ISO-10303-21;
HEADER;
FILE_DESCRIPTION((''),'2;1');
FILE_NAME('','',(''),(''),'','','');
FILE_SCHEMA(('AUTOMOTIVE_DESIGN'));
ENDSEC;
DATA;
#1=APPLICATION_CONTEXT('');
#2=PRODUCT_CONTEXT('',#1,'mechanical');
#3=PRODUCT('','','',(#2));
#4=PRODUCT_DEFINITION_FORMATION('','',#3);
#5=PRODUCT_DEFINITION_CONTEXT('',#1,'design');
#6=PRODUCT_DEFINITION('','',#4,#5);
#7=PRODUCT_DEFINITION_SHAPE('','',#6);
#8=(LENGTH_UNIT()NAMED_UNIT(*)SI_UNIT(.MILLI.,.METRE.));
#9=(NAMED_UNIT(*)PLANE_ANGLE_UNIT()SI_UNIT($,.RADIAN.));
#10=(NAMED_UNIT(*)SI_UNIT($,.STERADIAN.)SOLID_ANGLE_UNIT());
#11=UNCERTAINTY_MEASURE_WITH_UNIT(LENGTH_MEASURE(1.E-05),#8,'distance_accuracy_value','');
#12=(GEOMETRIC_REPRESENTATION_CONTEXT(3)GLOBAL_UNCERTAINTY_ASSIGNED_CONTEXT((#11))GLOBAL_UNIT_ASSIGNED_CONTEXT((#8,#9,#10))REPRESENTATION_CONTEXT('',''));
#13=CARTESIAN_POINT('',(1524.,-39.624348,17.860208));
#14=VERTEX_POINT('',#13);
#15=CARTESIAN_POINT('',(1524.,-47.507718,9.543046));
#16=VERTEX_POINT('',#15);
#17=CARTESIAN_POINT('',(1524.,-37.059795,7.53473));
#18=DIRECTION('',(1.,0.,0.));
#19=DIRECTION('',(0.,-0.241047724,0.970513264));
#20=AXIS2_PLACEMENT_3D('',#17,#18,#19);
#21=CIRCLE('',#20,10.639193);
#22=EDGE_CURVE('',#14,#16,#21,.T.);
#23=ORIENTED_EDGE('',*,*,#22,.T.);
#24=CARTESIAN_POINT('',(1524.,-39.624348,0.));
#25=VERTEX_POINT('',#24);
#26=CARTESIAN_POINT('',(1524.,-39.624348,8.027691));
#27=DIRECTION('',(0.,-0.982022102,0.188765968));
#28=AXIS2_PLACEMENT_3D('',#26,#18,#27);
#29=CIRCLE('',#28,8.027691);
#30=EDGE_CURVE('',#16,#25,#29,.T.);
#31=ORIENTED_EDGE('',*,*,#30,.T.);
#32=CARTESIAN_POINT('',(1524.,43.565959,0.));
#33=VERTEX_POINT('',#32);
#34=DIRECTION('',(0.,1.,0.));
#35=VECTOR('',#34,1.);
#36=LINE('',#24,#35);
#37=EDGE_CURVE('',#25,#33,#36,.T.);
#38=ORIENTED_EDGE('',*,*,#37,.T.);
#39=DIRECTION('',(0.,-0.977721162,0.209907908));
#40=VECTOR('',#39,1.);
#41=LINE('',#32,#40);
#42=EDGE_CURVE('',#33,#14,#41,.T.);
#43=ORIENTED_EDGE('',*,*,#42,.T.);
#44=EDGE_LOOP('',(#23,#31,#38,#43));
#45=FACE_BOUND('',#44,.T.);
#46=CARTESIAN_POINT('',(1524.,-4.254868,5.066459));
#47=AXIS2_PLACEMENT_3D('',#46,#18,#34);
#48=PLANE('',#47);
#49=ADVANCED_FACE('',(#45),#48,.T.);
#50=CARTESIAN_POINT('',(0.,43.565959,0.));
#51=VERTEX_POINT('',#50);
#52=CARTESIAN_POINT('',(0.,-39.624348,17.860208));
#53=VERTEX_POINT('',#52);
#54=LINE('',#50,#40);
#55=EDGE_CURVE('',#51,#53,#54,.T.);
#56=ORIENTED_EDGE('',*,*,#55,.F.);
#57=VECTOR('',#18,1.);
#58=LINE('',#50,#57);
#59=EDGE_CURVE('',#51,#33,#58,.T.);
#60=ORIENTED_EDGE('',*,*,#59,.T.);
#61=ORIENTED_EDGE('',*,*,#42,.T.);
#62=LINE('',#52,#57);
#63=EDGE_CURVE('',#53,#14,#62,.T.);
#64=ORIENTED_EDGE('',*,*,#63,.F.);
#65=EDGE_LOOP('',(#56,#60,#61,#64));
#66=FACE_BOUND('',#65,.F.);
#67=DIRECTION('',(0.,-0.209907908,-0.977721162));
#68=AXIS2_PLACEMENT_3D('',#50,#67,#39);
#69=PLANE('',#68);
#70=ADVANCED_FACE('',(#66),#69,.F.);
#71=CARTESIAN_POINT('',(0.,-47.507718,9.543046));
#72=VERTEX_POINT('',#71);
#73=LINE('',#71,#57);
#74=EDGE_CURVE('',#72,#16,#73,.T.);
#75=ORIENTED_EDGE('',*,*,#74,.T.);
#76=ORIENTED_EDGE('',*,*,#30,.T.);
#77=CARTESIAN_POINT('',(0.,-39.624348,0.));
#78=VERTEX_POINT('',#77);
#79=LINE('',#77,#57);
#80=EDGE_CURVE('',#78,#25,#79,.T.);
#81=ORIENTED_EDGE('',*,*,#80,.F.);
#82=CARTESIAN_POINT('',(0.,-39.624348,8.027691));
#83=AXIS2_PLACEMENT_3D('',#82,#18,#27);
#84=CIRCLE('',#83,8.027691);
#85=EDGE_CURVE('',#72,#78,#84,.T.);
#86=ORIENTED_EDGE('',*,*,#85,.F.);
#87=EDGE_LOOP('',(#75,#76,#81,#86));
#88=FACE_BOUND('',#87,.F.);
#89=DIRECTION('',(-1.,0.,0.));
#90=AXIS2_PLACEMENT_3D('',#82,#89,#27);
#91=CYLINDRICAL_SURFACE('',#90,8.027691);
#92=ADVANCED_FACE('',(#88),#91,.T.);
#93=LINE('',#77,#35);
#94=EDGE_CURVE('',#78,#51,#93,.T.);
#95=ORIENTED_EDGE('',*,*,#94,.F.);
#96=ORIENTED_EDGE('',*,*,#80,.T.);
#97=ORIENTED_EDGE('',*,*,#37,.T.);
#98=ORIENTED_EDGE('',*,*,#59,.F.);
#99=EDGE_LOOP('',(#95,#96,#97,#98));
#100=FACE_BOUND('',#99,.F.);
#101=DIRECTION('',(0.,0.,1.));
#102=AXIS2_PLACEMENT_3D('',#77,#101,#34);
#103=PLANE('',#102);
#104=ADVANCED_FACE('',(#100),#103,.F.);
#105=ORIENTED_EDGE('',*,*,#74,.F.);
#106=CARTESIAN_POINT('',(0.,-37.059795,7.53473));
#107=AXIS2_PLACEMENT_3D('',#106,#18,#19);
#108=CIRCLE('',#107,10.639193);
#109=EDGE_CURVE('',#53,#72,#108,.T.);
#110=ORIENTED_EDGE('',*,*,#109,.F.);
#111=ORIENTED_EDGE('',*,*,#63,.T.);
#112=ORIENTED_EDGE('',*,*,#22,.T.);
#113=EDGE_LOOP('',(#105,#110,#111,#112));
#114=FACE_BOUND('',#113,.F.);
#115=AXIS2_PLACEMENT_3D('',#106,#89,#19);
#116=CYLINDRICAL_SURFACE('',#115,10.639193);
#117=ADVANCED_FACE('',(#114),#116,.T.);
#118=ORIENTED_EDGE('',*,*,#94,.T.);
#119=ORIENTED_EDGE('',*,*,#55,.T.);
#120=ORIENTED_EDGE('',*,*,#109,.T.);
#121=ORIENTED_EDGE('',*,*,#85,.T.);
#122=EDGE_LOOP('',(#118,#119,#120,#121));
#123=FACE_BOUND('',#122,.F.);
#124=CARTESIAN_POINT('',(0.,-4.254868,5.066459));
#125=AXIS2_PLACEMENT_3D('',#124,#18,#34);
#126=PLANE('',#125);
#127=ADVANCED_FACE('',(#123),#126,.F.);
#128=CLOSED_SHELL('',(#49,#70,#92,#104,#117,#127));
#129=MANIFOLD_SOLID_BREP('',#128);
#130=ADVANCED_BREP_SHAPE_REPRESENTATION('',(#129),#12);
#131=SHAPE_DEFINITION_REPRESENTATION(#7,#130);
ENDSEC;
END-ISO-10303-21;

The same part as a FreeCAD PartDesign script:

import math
import FreeCAD as App
import Part
import Sketcher
Q = App.Units.Quantity

doc = App.newDocument("Part")
body = doc.addObject("PartDesign::Body", "Body")

# Sketch on YZ plane
sketch1 = body.newObject("Sketcher::SketchObject", "Sketch")
sketch1.AttachmentSupport = (doc.getObject("YZ_Plane"), [""])
sketch1.MapMode = "FlatFace"
sketch1.addGeometry([
    Part.ArcOfCircle(Part.Circle(App.Vector(-40, 8, 0), App.Vector(0, 0, 1), 8), math.radians(169), math.radians(270)),
    Part.LineSegment(App.Vector(-40, 0, 0), App.Vector(44, 0, 0)),
    Part.LineSegment(App.Vector(44, 0, 0), App.Vector(-40, 18, 0)),
    Part.ArcOfCircle(Part.Circle(App.Vector(-37, 8, 0), App.Vector(0, 0, 1), 11), math.radians(104), math.radians(169)),
], False)
sketch1.addConstraint([
    Sketcher.Constraint("Tangent", 0, 2, 1, 1),
    Sketcher.Constraint("Coincident", 1, 2, 2, 1),
    Sketcher.Constraint("Coincident", 2, 2, 3, 1),
    Sketcher.Constraint("Tangent", 3, 2, 0, 1),
    Sketcher.Constraint("Horizontal", 1),
    Sketcher.Constraint("PointOnObject", 0, 2, -1),
    Sketcher.Constraint("Vertical", 0, 2, 2, 2),
    Sketcher.Constraint("Radius", 0, Q("8.027691 mm")),
    Sketcher.Constraint("Radius", 3, Q("10.639193 mm")),
    Sketcher.Constraint("DistanceX", 1, 1, 1, 2, Q("83.190307 mm")),
    Sketcher.Constraint("DistanceY", -1, 1, 3, 3, Q("7.53473 mm")),
    Sketcher.Constraint("DistanceX", -1, 1, 1, 2, Q("43.565959 mm")),
])
pad1 = body.newObject("PartDesign::Pad", "Pad")
pad1.Profile = sketch1
pad1.Length = Q("60 in")

doc.recompute()
